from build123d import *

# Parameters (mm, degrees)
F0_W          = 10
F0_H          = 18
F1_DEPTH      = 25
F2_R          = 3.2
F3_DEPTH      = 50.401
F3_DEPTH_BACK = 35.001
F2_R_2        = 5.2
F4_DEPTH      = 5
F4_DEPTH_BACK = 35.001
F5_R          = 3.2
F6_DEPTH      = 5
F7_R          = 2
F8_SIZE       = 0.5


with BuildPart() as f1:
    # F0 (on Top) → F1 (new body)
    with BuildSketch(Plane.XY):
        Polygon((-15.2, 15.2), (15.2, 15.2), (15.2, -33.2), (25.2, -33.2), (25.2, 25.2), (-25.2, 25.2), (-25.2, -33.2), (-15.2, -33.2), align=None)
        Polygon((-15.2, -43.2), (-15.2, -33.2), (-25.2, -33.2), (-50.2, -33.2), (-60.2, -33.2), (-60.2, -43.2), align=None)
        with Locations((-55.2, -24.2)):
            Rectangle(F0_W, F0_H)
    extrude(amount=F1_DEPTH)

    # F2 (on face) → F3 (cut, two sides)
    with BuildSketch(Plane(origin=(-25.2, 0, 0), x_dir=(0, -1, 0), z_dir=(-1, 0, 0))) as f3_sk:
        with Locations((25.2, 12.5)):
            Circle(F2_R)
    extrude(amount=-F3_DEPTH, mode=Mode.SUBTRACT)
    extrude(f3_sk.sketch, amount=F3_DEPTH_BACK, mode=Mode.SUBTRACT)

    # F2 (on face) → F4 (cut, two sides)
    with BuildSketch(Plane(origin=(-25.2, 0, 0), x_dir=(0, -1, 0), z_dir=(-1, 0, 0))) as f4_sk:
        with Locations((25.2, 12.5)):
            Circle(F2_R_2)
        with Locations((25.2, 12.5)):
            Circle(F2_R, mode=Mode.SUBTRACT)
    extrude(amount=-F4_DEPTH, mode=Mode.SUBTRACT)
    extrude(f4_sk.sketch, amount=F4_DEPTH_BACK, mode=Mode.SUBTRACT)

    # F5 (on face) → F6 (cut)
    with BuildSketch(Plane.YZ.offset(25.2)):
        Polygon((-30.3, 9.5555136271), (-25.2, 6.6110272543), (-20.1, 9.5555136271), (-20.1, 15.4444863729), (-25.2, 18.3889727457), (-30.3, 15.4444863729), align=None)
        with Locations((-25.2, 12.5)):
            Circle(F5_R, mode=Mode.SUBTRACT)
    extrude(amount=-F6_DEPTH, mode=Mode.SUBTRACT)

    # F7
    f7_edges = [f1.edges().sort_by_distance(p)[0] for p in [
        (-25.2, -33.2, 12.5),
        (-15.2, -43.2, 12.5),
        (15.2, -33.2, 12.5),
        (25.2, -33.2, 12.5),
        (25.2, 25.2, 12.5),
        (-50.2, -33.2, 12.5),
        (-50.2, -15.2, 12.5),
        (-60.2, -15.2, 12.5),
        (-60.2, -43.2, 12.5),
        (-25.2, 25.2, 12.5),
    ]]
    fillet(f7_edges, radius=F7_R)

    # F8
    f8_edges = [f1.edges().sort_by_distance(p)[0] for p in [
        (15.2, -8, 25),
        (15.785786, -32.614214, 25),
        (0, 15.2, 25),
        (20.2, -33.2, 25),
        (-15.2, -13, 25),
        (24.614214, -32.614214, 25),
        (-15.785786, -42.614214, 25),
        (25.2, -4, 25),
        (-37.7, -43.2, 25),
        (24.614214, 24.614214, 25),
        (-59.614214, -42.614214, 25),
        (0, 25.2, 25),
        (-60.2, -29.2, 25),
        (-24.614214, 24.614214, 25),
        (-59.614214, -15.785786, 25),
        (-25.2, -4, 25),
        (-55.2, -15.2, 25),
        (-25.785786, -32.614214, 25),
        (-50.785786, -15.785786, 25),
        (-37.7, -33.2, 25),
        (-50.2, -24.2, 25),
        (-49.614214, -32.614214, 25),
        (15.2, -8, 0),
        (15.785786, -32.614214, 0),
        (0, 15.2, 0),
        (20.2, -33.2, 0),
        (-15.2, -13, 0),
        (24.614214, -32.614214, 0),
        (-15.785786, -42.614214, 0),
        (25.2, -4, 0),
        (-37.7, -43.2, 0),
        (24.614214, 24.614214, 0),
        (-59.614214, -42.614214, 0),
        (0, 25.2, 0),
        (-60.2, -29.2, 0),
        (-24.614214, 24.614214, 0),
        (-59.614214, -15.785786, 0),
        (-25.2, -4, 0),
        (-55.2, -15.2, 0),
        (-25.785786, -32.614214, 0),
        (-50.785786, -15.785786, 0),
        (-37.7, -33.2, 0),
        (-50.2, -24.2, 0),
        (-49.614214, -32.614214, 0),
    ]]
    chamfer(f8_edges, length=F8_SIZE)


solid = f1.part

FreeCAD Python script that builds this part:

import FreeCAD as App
import Part
import Sketcher
from FreeCAD import Vector
Q = App.Units.Quantity


def edges_at(feature, points):
    """Names of the edges that pass closest to the given points."""
    edges = feature.Shape.Edges
    near = lambda p: min(range(len(edges)), key=lambda i: edges[i].distToShape(Part.Vertex(*p))[0])
    return sorted({f"Edge{near(p) + 1}" for p in points})


def add_polygon(sketch, points):
    """Adds a closed chain of lines whose ends are joined by coincident constraints."""
    first, n = sketch.GeometryCount, len(points)
    for a, b in zip(points, points[1:] + points[:1]):
        sketch.addGeometry(Part.LineSegment(App.Vector(*a, 0), App.Vector(*b, 0)), False)
    for i in range(n):
        sketch.addConstraint(Sketcher.Constraint("Coincident", first + i, 2, first + (i + 1) % n, 1))

doc = App.newDocument("Part")
body = doc.addObject("PartDesign::Body", "Body")

sketch1 = doc.addObject("Sketcher::SketchObject", "Sketch")
body.addObject(sketch1)
sketch1.AttachmentSupport = (doc.XY_Plane, [""])
sketch1.MapMode = "FlatFace"
add_polygon(sketch1, [(-15, 15), (15, 15), (15, -33), (25, -33), (25, 25), (-25, 25), (-25, -33), (-50, -33), (-50, -15), (-60, -15), (-60, -43), (-15, -43)])
sketch1.addConstraint([
    Sketcher.Constraint("Horizontal", 0),
    Sketcher.Constraint("Vertical", 1),
    Sketcher.Constraint("Horizontal", 2),
    Sketcher.Constraint("Vertical", 3),
    Sketcher.Constraint("Horizontal", 4),
    Sketcher.Constraint("Vertical", 5),
    Sketcher.Constraint("Horizontal", 6),
    Sketcher.Constraint("Vertical", 7),
    Sketcher.Constraint("Horizontal", 8),
    Sketcher.Constraint("Vertical", 9),
    Sketcher.Constraint("Horizontal", 10),
    Sketcher.Constraint("Vertical", 11),
    Sketcher.Constraint("Symmetric", 2, 2, 5, 2, -2),
    Sketcher.Constraint("Equal", 2, 8),
    Sketcher.Constraint("Equal", 5, 11),
    Sketcher.Constraint("DistanceX", 2, 1, 2, 2, Q("10 mm")),
    Sketcher.Constraint("DistanceX", 6, 2, 6, 1, Q("25 mm")),
    Sketcher.Constraint("DistanceX", 10, 1, 10, 2, Q("45 mm")),
    Sketcher.Constraint("DistanceY", 7, 1, 7, 2, Q("18 mm")),
    Sketcher.Constraint("DistanceY", 9, 2, 9, 1, Q("28 mm")),
    Sketcher.Constraint("DistanceX", 0, 1, 0, 2, Q("30.4 mm")),
    Sketcher.Constraint("DistanceY", 1, 2, 1, 1, Q("48.4 mm")),
    Sketcher.Constraint("DistanceY", -1, 1, 0, 2, Q("15.2 mm")),
])
pad1 = doc.addObject("PartDesign::Pad", "Pad")
body.addObject(pad1)
pad1.Profile = sketch1
pad1.Length = 25

sketch2 = doc.addObject("Sketcher::SketchObject", "Sketch001")
body.addObject(sketch2)
sketch2.AttachmentSupport = (doc.YZ_Plane, [""])
sketch2.MapMode = "FlatFace"
sketch2.AttachmentOffset = App.Placement(Vector(0, 0, -25.2), App.Rotation())
sketch2.addGeometry(Part.Circle(Vector(-25.2, 12.5, 0), Vector(0, 0, 1), 3.2), False)
sketch2.addConstraint([
    Sketcher.Constraint("Diameter", 0, Q("6.4 mm")),
    Sketcher.Constraint("DistanceX", 0, 3, -1, 1, Q("25.2 mm")),
    Sketcher.Constraint("DistanceY", -1, 1, 0, 3, Q("12.5 mm")),
])
pocket1 = doc.addObject("PartDesign::Pocket", "Pocket")
body.addObject(pocket1)
pocket1.Profile = sketch2
pocket1.Type = "ThroughAll"
pocket1.Midplane = True

sketch3 = doc.addObject("Sketcher::SketchObject", "Sketch002")
body.addObject(sketch3)
sketch3.AttachmentSupport = (doc.YZ_Plane, [""])
sketch3.MapMode = "FlatFace"
sketch3.AttachmentOffset = App.Placement(Vector(0, 0, -25.2), App.Rotation())
sketch3.addGeometry([
    Part.Circle(Vector(-25.2, 12.5, 0), Vector(0, 0, 1), 5.2),
    Part.Circle(Vector(-25.2, 12.5, 0), Vector(0, 0, 1), 3.2),
], False)
sketch3.addConstraint([
    Sketcher.Constraint("Coincident", 1, 3, 0, 3),
    Sketcher.Constraint("Diameter", 0, Q("10.4 mm")),
    Sketcher.Constraint("Diameter", 1, Q("6.4 mm")),
    Sketcher.Constraint("DistanceX", 0, 3, -1, 1, Q("25.2 mm")),
    Sketcher.Constraint("DistanceY", -1, 1, 0, 3, Q("12.5 mm")),
])
pocket2 = doc.addObject("PartDesign::Pocket", "Pocket001")
body.addObject(pocket2)
pocket2.Profile = sketch3
pocket2.Type = "TwoLengths"
pocket2.Length = 5
pocket2.Length2 = 35.001
pocket2.Reversed = True

sketch4 = doc.addObject("Sketcher::SketchObject", "Sketch003")
body.addObject(sketch4)
sketch4.AttachmentSupport = (doc.YZ_Plane, [""])
sketch4.MapMode = "FlatFace"
sketch4.AttachmentOffset = App.Placement(Vector(0, 0, 25.2), App.Rotation())
add_polygon(sketch4, [(-30.3, 9.6), (-25.2, 6.6), (-20.1, 9.6), (-20.1, 15.4), (-25.2, 18.4), (-30.3, 15.4)])
sketch4.addGeometry(Part.Circle(Vector(-25.2, 12.5, 0), Vector(0, 0, 1), 3.2), False)
sketch4.addConstraint([
    Sketcher.Constraint("Vertical", 2),
    Sketcher.Constraint("Vertical", 5),
    Sketcher.Constraint("Parallel", 0, 3),
    Sketcher.Constraint("Parallel", 1, 4),
    Sketcher.Constraint("Horizontal", 2, 2, 4, 2),
    Sketcher.Constraint("Horizontal", 1, 2, 5, 2),
    Sketcher.Constraint("Vertical", 6, 3, 0, 2),
    Sketcher.Constraint("Vertical", 0, 2, 3, 2),
    Sketcher.Constraint("Diameter", 6, Q("6.4 mm")),
    Sketcher.Constraint("Angle", 0, Q("-30 deg")),
    Sketcher.Constraint("DistanceX", 6, 3, -1, 1, Q("25.2 mm")),
    Sketcher.Constraint("DistanceY", -1, 1, 6, 3, Q("12.5 mm")),
    Sketcher.Constraint("DistanceX", 1, 2, -1, 1, Q("20.1 mm")),
    Sketcher.Constraint("DistanceY", 2, 1, 2, 2, Q("5.888973 mm")),
    Sketcher.Constraint("DistanceY", -1, 1, 0, 2, Q("6.611027 mm")),
])
pocket3 = doc.addObject("PartDesign::Pocket", "Pocket002")
body.addObject(pocket3)
pocket3.Profile = sketch4
pocket3.Length = 5
doc.recompute()

fillet = doc.addObject("PartDesign::Fillet", "Fillet")
body.addObject(fillet)
fillet.Base = (pocket3, edges_at(pocket3, [
    (-25.2, -33.2, 12.5),
    (-15.2, -43.2, 12.5),
    (15.2, -33.2, 12.5),
    (25.2, -33.2, 12.5),
    (25.2, 25.2, 12.5),
    (-50.2, -33.2, 12.5),
    (-50.2, -15.2, 12.5),
    (-60.2, -15.2, 12.5),
    (-60.2, -43.2, 12.5),
    (-25.2, 25.2, 12.5),
]))
fillet.Radius = 2
doc.recompute()

chamfer = doc.addObject("PartDesign::Chamfer", "Chamfer")
body.addObject(chamfer)
chamfer.Base = (fillet, edges_at(fillet, [
    (15.2, -8, 25),
    (15.786, -32.614, 25),
    (0, 15.2, 25),
    (20.2, -33.2, 25),
    (-15.2, -13, 25),
    (24.614, -32.614, 25),
    (-15.786, -42.614, 25),
    (25.2, -4, 25),
    (-37.7, -43.2, 25),
    (24.614, 24.614, 25),
    (-59.614, -42.614, 25),
    (0, 25.2, 25),
    (-60.2, -29.2, 25),
    (-24.614, 24.614, 25),
    (-59.614, -15.786, 25),
    (-25.2, -4, 25),
    (-55.2, -15.2, 25),
    (-25.786, -32.614, 25),
    (-50.786, -15.786, 25),
    (-37.7, -33.2, 25),
    (-50.2, -24.2, 25),
    (-49.614, -32.614, 25),
    (15.2, -8, 0),
    (15.786, -32.614, 0),
    (0, 15.2, 0),
    (20.2, -33.2, 0),
    (-15.2, -13, 0),
    (24.614, -32.614, 0),
    (-15.786, -42.614, 0),
    (25.2, -4, 0),
    (-37.7, -43.2, 0),
    (24.614, 24.614, 0),
    (-59.614, -42.614, 0),
    (0, 25.2, 0),
    (-60.2, -29.2, 0),
    (-24.614, 24.614, 0),
    (-59.614, -15.786, 0),
    (-25.2, -4, 0),
    (-55.2, -15.2, 0),
    (-25.786, -32.614, 0),
    (-50.786, -15.786, 0),
    (-37.7, -33.2, 0),
    (-50.2, -24.2, 0),
    (-49.614, -32.614, 0),
]))
chamfer.Size = 0.5

doc.recompute()
